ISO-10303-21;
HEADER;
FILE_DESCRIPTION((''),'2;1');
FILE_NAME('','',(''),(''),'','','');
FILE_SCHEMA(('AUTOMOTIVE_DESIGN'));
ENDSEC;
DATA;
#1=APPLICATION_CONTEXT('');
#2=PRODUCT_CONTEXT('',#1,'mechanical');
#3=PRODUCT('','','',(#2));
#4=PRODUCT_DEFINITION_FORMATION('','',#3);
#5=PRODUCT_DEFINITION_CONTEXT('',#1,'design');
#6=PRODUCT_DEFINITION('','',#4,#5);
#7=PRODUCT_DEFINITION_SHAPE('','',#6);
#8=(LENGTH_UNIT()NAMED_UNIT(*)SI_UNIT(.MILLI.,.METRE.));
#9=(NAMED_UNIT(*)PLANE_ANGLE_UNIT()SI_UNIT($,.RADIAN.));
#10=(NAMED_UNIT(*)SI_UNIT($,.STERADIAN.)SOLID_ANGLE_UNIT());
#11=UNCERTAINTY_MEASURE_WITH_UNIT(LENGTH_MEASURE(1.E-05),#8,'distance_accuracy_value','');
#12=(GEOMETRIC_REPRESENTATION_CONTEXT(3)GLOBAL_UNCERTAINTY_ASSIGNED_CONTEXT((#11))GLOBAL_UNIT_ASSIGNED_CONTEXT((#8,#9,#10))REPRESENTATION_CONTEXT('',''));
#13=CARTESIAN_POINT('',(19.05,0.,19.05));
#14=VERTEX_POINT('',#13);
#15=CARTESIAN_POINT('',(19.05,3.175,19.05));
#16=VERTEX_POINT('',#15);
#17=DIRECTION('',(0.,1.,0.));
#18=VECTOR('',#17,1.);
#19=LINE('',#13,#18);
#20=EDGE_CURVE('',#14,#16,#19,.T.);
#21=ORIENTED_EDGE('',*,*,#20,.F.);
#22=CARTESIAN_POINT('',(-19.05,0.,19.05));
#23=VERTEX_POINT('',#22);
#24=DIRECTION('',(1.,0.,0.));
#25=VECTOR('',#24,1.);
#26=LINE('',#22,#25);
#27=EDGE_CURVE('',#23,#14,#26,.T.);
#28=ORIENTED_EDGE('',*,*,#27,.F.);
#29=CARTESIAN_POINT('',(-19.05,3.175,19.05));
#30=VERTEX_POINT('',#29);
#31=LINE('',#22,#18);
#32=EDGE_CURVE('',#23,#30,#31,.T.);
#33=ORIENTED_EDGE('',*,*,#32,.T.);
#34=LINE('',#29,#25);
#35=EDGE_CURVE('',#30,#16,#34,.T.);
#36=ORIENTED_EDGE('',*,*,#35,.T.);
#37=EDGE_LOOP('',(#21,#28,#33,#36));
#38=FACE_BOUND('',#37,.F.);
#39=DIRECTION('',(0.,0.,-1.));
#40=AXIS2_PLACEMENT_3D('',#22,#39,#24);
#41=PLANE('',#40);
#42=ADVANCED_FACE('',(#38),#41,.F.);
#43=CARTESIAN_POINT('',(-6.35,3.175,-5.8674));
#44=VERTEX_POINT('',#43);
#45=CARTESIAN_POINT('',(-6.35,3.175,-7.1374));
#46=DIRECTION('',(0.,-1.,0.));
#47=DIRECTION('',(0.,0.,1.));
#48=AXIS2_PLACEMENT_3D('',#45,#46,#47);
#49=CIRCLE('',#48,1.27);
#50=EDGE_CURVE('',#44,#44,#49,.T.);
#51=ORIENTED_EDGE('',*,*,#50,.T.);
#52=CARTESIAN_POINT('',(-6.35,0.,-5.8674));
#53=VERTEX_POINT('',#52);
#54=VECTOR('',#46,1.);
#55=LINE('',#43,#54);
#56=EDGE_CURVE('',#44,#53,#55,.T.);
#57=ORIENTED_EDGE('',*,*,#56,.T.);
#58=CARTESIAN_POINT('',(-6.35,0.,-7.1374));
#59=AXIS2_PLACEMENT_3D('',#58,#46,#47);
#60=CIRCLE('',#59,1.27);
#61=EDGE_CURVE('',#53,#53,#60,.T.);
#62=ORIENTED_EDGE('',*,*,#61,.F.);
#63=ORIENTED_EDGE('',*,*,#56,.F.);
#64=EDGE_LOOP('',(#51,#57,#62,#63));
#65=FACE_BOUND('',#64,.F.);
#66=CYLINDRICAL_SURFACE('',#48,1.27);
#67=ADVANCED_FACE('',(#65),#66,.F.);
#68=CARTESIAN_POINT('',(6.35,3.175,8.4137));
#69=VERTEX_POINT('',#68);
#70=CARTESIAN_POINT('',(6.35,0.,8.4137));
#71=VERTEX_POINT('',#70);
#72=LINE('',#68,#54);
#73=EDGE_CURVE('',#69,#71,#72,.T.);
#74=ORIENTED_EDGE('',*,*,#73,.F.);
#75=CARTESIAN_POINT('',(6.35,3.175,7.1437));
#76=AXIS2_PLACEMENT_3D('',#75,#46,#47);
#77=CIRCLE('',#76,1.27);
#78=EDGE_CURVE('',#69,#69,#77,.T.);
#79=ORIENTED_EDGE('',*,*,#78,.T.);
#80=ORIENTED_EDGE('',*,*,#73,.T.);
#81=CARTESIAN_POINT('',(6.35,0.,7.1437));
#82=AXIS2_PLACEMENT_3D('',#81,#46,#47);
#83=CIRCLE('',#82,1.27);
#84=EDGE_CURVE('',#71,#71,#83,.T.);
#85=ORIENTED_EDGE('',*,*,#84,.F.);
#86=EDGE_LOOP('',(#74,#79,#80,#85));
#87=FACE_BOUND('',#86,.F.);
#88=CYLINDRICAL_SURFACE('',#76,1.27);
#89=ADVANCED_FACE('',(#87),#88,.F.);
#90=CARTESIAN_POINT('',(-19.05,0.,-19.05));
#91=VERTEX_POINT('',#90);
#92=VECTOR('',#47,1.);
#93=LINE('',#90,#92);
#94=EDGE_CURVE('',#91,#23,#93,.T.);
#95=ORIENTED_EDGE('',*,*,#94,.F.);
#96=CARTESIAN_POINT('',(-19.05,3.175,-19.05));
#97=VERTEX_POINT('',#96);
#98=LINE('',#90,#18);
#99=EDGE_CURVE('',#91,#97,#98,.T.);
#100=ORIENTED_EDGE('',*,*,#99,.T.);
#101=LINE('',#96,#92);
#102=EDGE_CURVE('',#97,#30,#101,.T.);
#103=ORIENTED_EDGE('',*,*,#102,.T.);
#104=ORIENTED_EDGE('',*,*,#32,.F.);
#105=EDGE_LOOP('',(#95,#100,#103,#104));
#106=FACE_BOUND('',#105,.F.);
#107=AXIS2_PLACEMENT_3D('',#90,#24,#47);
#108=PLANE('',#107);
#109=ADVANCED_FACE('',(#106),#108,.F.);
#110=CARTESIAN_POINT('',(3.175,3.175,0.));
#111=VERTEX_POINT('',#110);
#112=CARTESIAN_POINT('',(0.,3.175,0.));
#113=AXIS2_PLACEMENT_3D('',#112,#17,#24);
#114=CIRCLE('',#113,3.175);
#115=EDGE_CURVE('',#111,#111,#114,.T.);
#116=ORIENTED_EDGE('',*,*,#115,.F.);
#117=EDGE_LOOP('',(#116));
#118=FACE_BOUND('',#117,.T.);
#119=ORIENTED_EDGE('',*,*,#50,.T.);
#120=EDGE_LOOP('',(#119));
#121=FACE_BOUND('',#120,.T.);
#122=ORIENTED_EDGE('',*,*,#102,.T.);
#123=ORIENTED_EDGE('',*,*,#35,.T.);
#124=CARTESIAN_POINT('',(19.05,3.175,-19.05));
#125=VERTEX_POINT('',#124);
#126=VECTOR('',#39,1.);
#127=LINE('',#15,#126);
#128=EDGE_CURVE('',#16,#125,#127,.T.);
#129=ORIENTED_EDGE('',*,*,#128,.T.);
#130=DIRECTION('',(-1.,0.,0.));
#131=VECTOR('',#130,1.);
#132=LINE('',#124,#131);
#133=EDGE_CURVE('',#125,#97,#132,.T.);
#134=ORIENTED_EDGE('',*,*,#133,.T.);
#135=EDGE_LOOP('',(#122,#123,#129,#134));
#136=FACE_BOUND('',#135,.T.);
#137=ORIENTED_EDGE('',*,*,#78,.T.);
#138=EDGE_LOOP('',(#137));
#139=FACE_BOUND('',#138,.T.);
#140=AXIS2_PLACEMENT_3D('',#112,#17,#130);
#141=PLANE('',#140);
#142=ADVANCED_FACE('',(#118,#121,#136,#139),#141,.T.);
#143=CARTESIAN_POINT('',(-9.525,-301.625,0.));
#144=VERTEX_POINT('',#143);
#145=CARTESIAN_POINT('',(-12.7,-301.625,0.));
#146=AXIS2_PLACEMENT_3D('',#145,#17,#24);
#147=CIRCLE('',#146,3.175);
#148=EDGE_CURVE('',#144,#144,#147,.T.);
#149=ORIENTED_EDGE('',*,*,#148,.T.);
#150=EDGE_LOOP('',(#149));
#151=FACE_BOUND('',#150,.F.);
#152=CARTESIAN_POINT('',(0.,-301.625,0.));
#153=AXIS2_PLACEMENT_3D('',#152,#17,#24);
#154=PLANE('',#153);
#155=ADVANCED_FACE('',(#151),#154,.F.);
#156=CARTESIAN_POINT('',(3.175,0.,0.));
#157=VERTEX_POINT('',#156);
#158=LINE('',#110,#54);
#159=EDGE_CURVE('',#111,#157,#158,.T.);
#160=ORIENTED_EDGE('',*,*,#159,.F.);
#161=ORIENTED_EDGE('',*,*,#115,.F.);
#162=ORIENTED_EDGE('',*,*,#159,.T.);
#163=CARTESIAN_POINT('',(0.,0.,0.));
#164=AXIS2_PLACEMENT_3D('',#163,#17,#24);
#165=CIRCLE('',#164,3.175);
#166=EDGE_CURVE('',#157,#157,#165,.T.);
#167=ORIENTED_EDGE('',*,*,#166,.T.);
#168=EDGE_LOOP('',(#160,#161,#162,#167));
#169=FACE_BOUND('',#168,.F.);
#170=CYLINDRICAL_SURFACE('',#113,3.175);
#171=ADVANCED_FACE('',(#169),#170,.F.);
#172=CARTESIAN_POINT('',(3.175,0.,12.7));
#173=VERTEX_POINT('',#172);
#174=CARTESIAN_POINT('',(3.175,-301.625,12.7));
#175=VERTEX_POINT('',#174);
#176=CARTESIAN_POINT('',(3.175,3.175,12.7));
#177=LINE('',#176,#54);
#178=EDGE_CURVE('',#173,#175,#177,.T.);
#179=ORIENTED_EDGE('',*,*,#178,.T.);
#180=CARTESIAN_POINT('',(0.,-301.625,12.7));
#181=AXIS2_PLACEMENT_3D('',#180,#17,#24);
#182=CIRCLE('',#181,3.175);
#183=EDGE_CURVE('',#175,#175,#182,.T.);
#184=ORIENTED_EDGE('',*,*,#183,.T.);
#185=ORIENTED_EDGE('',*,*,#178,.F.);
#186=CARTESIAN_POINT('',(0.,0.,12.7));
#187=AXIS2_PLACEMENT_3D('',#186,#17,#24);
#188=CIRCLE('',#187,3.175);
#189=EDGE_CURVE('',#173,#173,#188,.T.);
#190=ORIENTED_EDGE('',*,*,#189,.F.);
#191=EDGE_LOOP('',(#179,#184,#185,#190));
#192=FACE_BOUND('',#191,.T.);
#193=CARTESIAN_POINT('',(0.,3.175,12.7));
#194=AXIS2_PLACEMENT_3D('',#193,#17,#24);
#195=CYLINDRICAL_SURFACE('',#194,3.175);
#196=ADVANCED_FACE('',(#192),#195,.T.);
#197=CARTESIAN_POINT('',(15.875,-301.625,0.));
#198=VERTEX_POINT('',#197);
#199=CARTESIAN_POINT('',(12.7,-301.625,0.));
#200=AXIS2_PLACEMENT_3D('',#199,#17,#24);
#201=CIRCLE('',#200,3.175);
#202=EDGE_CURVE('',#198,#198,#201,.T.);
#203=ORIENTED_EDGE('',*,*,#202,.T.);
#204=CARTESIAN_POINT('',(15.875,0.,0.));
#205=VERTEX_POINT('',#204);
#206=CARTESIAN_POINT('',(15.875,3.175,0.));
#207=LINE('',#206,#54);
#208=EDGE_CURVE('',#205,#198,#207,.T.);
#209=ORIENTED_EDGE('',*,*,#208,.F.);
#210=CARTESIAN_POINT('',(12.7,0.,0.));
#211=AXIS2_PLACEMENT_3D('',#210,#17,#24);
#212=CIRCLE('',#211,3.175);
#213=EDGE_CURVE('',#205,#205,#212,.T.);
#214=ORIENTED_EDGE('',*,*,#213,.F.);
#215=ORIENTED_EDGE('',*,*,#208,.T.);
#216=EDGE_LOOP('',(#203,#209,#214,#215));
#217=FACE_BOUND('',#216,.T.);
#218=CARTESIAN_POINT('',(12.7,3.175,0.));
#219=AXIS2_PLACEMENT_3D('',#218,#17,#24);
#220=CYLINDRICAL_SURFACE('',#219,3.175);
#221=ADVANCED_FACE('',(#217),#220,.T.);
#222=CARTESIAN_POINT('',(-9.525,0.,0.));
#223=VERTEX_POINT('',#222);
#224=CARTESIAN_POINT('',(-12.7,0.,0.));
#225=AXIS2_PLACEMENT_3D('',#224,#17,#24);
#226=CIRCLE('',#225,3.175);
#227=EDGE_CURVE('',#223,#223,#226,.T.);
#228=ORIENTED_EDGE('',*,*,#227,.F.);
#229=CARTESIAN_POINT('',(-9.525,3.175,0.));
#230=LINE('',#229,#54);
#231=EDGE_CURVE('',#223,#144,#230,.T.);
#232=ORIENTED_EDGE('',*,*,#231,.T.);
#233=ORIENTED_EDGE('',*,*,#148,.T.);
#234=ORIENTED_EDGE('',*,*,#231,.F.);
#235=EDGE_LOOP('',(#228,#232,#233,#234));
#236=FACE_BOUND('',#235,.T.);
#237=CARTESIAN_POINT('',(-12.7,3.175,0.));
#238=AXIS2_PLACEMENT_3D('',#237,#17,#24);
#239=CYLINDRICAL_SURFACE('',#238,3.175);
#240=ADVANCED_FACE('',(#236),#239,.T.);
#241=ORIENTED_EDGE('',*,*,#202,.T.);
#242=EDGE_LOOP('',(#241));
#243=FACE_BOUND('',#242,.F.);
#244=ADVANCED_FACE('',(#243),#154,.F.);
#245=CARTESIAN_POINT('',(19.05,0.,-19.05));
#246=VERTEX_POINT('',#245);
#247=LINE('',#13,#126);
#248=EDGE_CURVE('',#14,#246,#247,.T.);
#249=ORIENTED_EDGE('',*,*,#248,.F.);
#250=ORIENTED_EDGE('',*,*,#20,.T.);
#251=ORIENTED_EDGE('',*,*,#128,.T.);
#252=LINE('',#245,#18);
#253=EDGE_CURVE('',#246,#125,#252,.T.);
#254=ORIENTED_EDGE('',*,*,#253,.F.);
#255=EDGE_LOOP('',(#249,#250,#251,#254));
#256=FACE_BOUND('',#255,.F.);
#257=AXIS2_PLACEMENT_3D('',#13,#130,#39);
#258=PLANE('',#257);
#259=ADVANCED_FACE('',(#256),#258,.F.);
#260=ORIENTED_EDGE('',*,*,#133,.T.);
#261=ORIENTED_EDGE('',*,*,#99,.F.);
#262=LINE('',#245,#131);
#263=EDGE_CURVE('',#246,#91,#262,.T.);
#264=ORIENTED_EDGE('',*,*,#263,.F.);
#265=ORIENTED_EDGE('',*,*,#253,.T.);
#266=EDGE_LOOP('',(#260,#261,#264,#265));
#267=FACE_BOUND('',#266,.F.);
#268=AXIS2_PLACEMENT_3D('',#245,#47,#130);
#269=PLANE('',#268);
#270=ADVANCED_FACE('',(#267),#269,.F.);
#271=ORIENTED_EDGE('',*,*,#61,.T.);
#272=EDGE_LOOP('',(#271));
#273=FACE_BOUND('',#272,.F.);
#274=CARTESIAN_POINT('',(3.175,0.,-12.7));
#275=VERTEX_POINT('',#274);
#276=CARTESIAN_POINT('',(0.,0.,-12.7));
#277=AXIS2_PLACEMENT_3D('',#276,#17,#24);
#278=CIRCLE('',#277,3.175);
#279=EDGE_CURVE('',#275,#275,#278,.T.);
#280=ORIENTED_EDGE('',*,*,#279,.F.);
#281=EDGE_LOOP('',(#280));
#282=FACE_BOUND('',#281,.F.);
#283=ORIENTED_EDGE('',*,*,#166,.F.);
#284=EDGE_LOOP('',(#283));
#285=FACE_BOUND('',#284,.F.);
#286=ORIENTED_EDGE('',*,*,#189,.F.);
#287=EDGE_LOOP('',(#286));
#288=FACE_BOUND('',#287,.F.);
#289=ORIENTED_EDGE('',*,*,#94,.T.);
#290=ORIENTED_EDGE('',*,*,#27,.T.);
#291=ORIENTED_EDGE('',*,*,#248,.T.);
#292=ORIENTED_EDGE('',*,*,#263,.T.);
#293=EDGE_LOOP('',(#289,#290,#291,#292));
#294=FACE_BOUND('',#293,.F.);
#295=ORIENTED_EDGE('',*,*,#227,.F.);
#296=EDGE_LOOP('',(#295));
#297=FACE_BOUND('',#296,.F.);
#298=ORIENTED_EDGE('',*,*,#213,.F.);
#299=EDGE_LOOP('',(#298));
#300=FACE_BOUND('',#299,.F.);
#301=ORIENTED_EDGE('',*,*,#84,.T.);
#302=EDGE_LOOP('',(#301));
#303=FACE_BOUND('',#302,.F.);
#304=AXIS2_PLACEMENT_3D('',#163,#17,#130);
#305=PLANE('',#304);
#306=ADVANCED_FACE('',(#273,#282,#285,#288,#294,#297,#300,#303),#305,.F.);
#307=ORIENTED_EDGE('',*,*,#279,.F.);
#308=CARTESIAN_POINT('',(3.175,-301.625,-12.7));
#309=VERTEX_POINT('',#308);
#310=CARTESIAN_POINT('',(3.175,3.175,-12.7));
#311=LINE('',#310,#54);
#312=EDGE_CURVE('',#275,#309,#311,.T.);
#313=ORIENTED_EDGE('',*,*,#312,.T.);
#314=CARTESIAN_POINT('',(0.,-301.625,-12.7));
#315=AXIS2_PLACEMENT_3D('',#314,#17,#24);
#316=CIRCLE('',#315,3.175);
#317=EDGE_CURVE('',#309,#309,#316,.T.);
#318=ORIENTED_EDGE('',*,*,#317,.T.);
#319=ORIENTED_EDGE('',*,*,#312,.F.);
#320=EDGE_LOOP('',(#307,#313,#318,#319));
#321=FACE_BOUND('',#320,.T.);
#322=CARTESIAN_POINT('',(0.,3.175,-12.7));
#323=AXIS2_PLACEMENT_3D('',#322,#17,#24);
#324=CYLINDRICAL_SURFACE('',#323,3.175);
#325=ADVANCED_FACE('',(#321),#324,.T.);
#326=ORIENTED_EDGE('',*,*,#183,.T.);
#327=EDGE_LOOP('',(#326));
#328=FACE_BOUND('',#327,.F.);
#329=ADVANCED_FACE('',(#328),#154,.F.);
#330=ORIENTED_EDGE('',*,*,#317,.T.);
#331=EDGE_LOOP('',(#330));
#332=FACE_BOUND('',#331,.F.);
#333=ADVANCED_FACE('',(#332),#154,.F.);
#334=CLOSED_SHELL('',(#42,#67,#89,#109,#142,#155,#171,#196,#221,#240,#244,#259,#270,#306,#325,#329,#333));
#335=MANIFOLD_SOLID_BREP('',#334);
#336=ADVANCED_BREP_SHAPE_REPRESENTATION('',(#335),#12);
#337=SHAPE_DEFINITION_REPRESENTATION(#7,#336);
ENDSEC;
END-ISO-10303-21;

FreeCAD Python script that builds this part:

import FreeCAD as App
import Part
import Sketcher

V = App.Vector
Q = App.Units.Quantity


def add_polygon(sketch, points):
    """Adds a closed chain of lines whose ends are joined by coincident constraints."""
    first, n = sketch.GeometryCount, len(points)
    for a, b in zip(points, points[1:] + points[:1]):
        sketch.addGeometry(Part.LineSegment(App.Vector(*a, 0), App.Vector(*b, 0)), False)
    for i in range(n):
        sketch.addConstraint(Sketcher.Constraint("Coincident", first + i, 2, first + (i + 1) % n, 1))

doc = App.newDocument("Part")
body = doc.addObject("PartDesign::Body", "Body")

sketch1 = body.newObject("Sketcher::SketchObject", "Sketch")
sketch1.AttachmentSupport = (doc.getObject("XZ_Plane"), [""])
sketch1.MapMode = "FlatFace"
add_polygon(sketch1, [(-19, -19), (-19, 19), (19, 19), (19, -19)])
sketch1.addConstraint([
    Sketcher.Constraint("Vertical", 0),
    Sketcher.Constraint("Horizontal", 1),
    Sketcher.Constraint("Vertical", 2),
    Sketcher.Constraint("Horizontal", 3),
    Sketcher.Constraint("Symmetric", 0, 2, 2, 2, -1, 1),
    Sketcher.Constraint("Equal", 3, 0),
    Sketcher.Constraint("DistanceX", 1, 1, 1, 2, Q("1.5 in")),
])
pad1 = body.newObject("PartDesign::Pad", "Pad")
pad1.Profile = sketch1
pad1.Length = Q("0.125 in")
pad1.Reversed = True

sketch2 = body.newObject("Sketcher::SketchObject", "Sketch001")
sketch2.AttachmentSupport = (doc.getObject("XZ_Plane"), [""])
sketch2.MapMode = "FlatFace"
sketch2.AttachmentOffset = App.Placement(V(0, 0, -0.125 * 25.4), App.Rotation())
sketch2.addGeometry(Part.Circle(V(-6.3, -7.1, 0), V(0, 0, 1), 1.3), False)
sketch2.addConstraint([
    Sketcher.Constraint("Diameter", 0, Q("0.1 in")),
    Sketcher.Constraint("DistanceX", 0, 3, -1, 1, Q("0.25 in")),
    Sketcher.Constraint("DistanceY", 0, 3, -1, 1, Q("0.281 in")),
])
doc.recompute()
hole = body.newObject("PartDesign::Hole", "Hole")
hole.Profile = sketch2
hole.ThreadType = "None"
hole.Diameter = Q("0.1 in")
hole.DepthType = "Dimension"
hole.Depth = Q("0.125 in")
hole.DrillPoint = "Flat"
hole.Reversed = True

sketch3 = body.newObject("Sketcher::SketchObject", "Sketch002")
sketch3.AttachmentSupport = (doc.getObject("XZ_Plane"), [""])
sketch3.MapMode = "FlatFace"
sketch3.AttachmentOffset = App.Placement(V(0, 0, -0.125 * 25.4), App.Rotation())
sketch3.addGeometry(Part.Circle(V(6.3, 7.1, 0), V(0, 0, 1), 1.3), False)
sketch3.addConstraint([
    Sketcher.Constraint("Diameter", 0, Q("0.1 in")),
    Sketcher.Constraint("DistanceX", -1, 1, 0, 3, Q("0.25 in")),
    Sketcher.Constraint("DistanceY", -1, 1, 0, 3, Q("0.281248 in")),
])
doc.recompute()
hole2 = body.newObject("PartDesign::Hole", "Hole001")
hole2.Profile = sketch3
hole2.ThreadType = "None"
hole2.Diameter = Q("0.1 in")
hole2.DepthType = "Dimension"
hole2.Depth = Q("0.125 in")
hole2.DrillPoint = "Flat"
hole2.Reversed = True

sketch4 = body.newObject("Sketcher::SketchObject", "Sketch003")
sketch4.AttachmentSupport = (doc.getObject("XZ_Plane"), [""])
sketch4.MapMode = "FlatFace"
sketch4.AttachmentOffset = App.Placement(V(0, 0, -0.125 * 25.4), App.Rotation())
sketch4.addGeometry(Part.Circle(V(0, 0, 0), V(0, 0, 1), 3.2), False)
sketch4.addConstraint([
    Sketcher.Constraint("Coincident", 0, 3, -1, 1),
    Sketcher.Constraint("Diameter", 0, Q("0.25 in")),
])
pocket1 = body.newObject("PartDesign::Pocket", "Pocket")
pocket1.Profile = sketch4
pocket1.Length = Q("12 in")
pocket1.Reversed = True

sketch5 = body.newObject("Sketcher::SketchObject", "Sketch004")
sketch5.AttachmentSupport = (doc.getObject("XZ_Plane"), [""])
sketch5.MapMode = "FlatFace"
sketch5.AttachmentOffset = App.Placement(V(0, 0, -0.125 * 25.4), App.Rotation())
sketch5.addGeometry([
    Part.Circle(V(0, -12.7, 0), V(0, 0, 1), 3.2),
    Part.Circle(V(-12.7, 0, 0), V(0, 0, 1), 3.2),
    Part.Circle(V(12.7, 0, 0), V(0, 0, 1), 3.2),
    Part.Circle(V(0, 12.7, 0), V(0, 0, 1), 3.2),
], False)
sketch5.addConstraint([
    Sketcher.Constraint("Equal", 0, 1),
    Sketcher.Constraint("Equal", 1, 2),
    Sketcher.Constraint("Equal", 2, 3),
    Sketcher.Constraint("Symmetric", 1, 3, 2, 3, -1, 1),
    Sketcher.Constraint("Symmetric", 0, 3, 3, 3, -1, 1),
    Sketcher.Constraint("PointOnObject", 0, 3, -2),
    Sketcher.Constraint("PointOnObject", 1, 3, -1),
    Sketcher.Constraint("Diameter", 0, Q("0.25 in")),
    Sketcher.Constraint("DistanceX", 1, 3, 2, 3, Q("1 in")),
    Sketcher.Constraint("DistanceY", 0, 3, 3, 3, Q("1 in")),
])
pad2 = body.newObject("PartDesign::Pad", "Pad001")
pad2.Profile = sketch5
pad2.Length = Q("12 in")

doc.recompute()
